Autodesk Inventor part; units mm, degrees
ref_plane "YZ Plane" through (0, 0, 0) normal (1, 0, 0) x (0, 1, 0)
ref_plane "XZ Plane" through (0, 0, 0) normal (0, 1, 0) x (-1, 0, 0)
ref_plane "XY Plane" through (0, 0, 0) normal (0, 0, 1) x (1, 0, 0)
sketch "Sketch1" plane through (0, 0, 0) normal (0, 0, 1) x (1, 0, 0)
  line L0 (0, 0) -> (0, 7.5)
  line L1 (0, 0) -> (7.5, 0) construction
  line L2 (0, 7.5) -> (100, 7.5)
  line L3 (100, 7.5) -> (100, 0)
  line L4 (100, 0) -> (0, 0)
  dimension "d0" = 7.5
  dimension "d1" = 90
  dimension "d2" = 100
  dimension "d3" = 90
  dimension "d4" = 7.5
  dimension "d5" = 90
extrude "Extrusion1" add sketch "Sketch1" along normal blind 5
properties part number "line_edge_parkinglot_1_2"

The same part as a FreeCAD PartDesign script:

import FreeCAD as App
import Part
import Sketcher
Q = App.Units.Quantity

doc = App.newDocument("Part")
body = doc.addObject("PartDesign::Body", "Body")

# Sketch on XY plane
sketch1 = doc.addObject("Sketcher::SketchObject", "Sketch")
body.addObject(sketch1)
sketch1.AttachmentSupport = (doc.XY_Plane, [""])
sketch1.MapMode = "FlatFace"
sketch1.addGeometry(Part.LineSegment(App.Vector(0, 7.5, 0), App.Vector(0, 0, 0)), False)
sketch1.addGeometry(Part.LineSegment(App.Vector(0, 0, 0), App.Vector(100, 0, 0)), False)
sketch1.addGeometry(Part.LineSegment(App.Vector(100, 0, 0), App.Vector(100, 7.5, 0)), False)
sketch1.addGeometry(Part.LineSegment(App.Vector(100, 7.5, 0), App.Vector(0, 7.5, 0)), False)
sketch1.addConstraint(Sketcher.Constraint("Coincident", 0, 2, 1, 1))
sketch1.addConstraint(Sketcher.Constraint("Coincident", 1, 2, 2, 1))
sketch1.addConstraint(Sketcher.Constraint("Coincident", 2, 2, 3, 1))
sketch1.addConstraint(Sketcher.Constraint("Coincident", 3, 2, 0, 1))
sketch1.addConstraint(Sketcher.Constraint("Vertical", 0))
sketch1.addConstraint(Sketcher.Constraint("Horizontal", 1))
sketch1.addConstraint(Sketcher.Constraint("Vertical", 2))
sketch1.addConstraint(Sketcher.Constraint("Horizontal", 3))
sketch1.addConstraint(Sketcher.Constraint("Coincident", 0, 2, -1, 1))
sketch1.addConstraint(Sketcher.Constraint("DistanceX", 1, 1, 1, 2, Q("100 mm")))
sketch1.addConstraint(Sketcher.Constraint("DistanceY", 0, 2, 0, 1, Q("7.5 mm")))
pad1 = doc.addObject("PartDesign::Pad", "Pad")
body.addObject(pad1)
pad1.Profile = sketch1
pad1.Length = 5

doc.recompute()
